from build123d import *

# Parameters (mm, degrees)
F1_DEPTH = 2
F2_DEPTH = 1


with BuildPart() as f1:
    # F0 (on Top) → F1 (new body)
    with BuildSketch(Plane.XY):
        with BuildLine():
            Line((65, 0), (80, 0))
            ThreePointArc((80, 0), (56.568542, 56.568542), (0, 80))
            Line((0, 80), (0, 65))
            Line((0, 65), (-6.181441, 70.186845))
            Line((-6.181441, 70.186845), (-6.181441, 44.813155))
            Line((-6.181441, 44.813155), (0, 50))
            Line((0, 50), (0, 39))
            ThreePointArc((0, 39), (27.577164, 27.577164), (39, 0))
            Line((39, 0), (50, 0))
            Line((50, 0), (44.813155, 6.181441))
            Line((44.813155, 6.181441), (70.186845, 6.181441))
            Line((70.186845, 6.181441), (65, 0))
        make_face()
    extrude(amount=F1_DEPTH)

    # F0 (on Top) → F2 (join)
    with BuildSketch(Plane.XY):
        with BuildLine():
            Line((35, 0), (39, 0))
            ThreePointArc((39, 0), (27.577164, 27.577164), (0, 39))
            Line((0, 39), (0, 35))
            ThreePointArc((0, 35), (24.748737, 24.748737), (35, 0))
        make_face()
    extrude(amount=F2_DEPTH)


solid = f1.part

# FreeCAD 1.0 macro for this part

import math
import FreeCAD as App
import Part
import Sketcher
Q = App.Units.Quantity

doc = App.newDocument("Part")
body = doc.addObject("PartDesign::Body", "Body")

sketch1 = body.newObject("Sketcher::SketchObject", "Sketch")
sketch1.AttachmentSupport = (doc.getObject("XY_Plane"), [""])
sketch1.MapMode = "FlatFace"
sketch1.addGeometry([
    Part.LineSegment(App.Vector(65, 0, 0), App.Vector(80, 0, 0)),
    Part.ArcOfCircle(Part.Circle(App.Vector(0, 0, 0), App.Vector(0, 0, 1), 80), math.radians(0), math.radians(90)),
    Part.LineSegment(App.Vector(0, 80, 0), App.Vector(0, 65, 0)),
    Part.LineSegment(App.Vector(0, 65, 0), App.Vector(-6, 70, 0)),
    Part.LineSegment(App.Vector(-6, 70, 0), App.Vector(-6, 45, 0)),
    Part.LineSegment(App.Vector(-6, 45, 0), App.Vector(0, 50, 0)),
    Part.LineSegment(App.Vector(0, 50, 0), App.Vector(0, 39, 0)),
    Part.ArcOfCircle(Part.Circle(App.Vector(0, 0, 0), App.Vector(0, 0, 1), 39), math.radians(0), math.radians(90)),
    Part.LineSegment(App.Vector(39, 0, 0), App.Vector(50, 0, 0)),
    Part.LineSegment(App.Vector(50, 0, 0), App.Vector(45, 6, 0)),
    Part.LineSegment(App.Vector(45, 6, 0), App.Vector(70, 6, 0)),
    Part.LineSegment(App.Vector(70, 6, 0), App.Vector(65, 0, 0)),
], False)
sketch1.addConstraint([
    Sketcher.Constraint("Coincident", 0, 2, 1, 1),
    Sketcher.Constraint("Coincident", 1, 2, 2, 1),
    Sketcher.Constraint("Coincident", 2, 2, 3, 1),
    Sketcher.Constraint("Coincident", 3, 2, 4, 1),
    Sketcher.Constraint("Coincident", 4, 2, 5, 1),
    Sketcher.Constraint("Coincident", 5, 2, 6, 1),
    Sketcher.Constraint("Coincident", 6, 2, 7, 2),
    Sketcher.Constraint("Coincident", 7, 1, 8, 1),
    Sketcher.Constraint("Coincident", 8, 2, 9, 1),
    Sketcher.Constraint("Coincident", 9, 2, 10, 1),
    Sketcher.Constraint("Coincident", 10, 2, 11, 1),
    Sketcher.Constraint("Coincident", 11, 2, 0, 1),
    Sketcher.Constraint("Horizontal", 0),
    Sketcher.Constraint("Vertical", 2),
    Sketcher.Constraint("Vertical", 4),
    Sketcher.Constraint("Vertical", 6),
    Sketcher.Constraint("Horizontal", 8),
    Sketcher.Constraint("Horizontal", 10),
    Sketcher.Constraint("Coincident", 1, 3, -1, 1),
    Sketcher.Constraint("Coincident", 7, 3, -1, 1),
    Sketcher.Constraint("PointOnObject", 0, 2, -1),
    Sketcher.Constraint("PointOnObject", 1, 2, -2),
    Sketcher.Constraint("PointOnObject", 5, 2, -2),
    Sketcher.Constraint("PointOnObject", 7, 1, -1),
    Sketcher.Constraint("Perpendicular", 5, 9),
    Sketcher.Constraint("Perpendicular", 3, 11),
    Sketcher.Constraint("Equal", 0, 2),
    Sketcher.Constraint("Equal", 10, 4),
    Sketcher.Constraint("Equal", 8, 6),
    Sketcher.Constraint("Equal", 3, 5),
    Sketcher.Constraint("Radius", 1, 80.000002),
    Sketcher.Constraint("Radius", 7, 39.000002),
    Sketcher.Constraint("DistanceX", 0, 1, 0, 2, 15.0),
    Sketcher.Constraint("DistanceX", 8, 1, 8, 2, 11.0),
    Sketcher.Constraint("Angle", 3, Q("139.999999 deg")),
    Sketcher.Constraint("Distance", 3, 8.069298),
])
pad1 = body.newObject("PartDesign::Pad", "Pad")
pad1.Profile = sketch1
pad1.Length = 2

sketch2 = body.newObject("Sketcher::SketchObject", "Sketch001")
sketch2.AttachmentSupport = (doc.getObject("XY_Plane"), [""])
sketch2.MapMode = "FlatFace"
sketch2.addGeometry([
    Part.LineSegment(App.Vector(35, 0, 0), App.Vector(39, 0, 0)),
    Part.ArcOfCircle(Part.Circle(App.Vector(0, 0, 0), App.Vector(0, 0, 1), 39), math.radians(0), math.radians(90)),
    Part.LineSegment(App.Vector(0, 39, 0), App.Vector(0, 35, 0)),
    Part.ArcOfCircle(Part.Circle(App.Vector(0, 0, 0), App.Vector(0, 0, 1), 35), math.radians(0), math.radians(90)),
], False)
sketch2.addConstraint([
    Sketcher.Constraint("Coincident", 0, 2, 1, 1),
    Sketcher.Constraint("Coincident", 1, 2, 2, 1),
    Sketcher.Constraint("Coincident", 2, 2, 3, 2),
    Sketcher.Constraint("Coincident", 3, 1, 0, 1),
    Sketcher.Constraint("Horizontal", 0),
    Sketcher.Constraint("Vertical", 2),
    Sketcher.Constraint("Coincident", 1, 3, -1, 1),
    Sketcher.Constraint("Coincident", 3, 3, -1, 1),
    Sketcher.Constraint("PointOnObject", 0, 2, -1),
    Sketcher.Constraint("PointOnObject", 1, 2, -2),
    Sketcher.Constraint("Radius", 1, 39.000002),
    Sketcher.Constraint("Radius", 3, 35.000001),
])
pad2 = body.newObject("PartDesign::Pad", "Pad001")
pad2.Profile = sketch2
pad2.Length = 1

doc.recompute()
